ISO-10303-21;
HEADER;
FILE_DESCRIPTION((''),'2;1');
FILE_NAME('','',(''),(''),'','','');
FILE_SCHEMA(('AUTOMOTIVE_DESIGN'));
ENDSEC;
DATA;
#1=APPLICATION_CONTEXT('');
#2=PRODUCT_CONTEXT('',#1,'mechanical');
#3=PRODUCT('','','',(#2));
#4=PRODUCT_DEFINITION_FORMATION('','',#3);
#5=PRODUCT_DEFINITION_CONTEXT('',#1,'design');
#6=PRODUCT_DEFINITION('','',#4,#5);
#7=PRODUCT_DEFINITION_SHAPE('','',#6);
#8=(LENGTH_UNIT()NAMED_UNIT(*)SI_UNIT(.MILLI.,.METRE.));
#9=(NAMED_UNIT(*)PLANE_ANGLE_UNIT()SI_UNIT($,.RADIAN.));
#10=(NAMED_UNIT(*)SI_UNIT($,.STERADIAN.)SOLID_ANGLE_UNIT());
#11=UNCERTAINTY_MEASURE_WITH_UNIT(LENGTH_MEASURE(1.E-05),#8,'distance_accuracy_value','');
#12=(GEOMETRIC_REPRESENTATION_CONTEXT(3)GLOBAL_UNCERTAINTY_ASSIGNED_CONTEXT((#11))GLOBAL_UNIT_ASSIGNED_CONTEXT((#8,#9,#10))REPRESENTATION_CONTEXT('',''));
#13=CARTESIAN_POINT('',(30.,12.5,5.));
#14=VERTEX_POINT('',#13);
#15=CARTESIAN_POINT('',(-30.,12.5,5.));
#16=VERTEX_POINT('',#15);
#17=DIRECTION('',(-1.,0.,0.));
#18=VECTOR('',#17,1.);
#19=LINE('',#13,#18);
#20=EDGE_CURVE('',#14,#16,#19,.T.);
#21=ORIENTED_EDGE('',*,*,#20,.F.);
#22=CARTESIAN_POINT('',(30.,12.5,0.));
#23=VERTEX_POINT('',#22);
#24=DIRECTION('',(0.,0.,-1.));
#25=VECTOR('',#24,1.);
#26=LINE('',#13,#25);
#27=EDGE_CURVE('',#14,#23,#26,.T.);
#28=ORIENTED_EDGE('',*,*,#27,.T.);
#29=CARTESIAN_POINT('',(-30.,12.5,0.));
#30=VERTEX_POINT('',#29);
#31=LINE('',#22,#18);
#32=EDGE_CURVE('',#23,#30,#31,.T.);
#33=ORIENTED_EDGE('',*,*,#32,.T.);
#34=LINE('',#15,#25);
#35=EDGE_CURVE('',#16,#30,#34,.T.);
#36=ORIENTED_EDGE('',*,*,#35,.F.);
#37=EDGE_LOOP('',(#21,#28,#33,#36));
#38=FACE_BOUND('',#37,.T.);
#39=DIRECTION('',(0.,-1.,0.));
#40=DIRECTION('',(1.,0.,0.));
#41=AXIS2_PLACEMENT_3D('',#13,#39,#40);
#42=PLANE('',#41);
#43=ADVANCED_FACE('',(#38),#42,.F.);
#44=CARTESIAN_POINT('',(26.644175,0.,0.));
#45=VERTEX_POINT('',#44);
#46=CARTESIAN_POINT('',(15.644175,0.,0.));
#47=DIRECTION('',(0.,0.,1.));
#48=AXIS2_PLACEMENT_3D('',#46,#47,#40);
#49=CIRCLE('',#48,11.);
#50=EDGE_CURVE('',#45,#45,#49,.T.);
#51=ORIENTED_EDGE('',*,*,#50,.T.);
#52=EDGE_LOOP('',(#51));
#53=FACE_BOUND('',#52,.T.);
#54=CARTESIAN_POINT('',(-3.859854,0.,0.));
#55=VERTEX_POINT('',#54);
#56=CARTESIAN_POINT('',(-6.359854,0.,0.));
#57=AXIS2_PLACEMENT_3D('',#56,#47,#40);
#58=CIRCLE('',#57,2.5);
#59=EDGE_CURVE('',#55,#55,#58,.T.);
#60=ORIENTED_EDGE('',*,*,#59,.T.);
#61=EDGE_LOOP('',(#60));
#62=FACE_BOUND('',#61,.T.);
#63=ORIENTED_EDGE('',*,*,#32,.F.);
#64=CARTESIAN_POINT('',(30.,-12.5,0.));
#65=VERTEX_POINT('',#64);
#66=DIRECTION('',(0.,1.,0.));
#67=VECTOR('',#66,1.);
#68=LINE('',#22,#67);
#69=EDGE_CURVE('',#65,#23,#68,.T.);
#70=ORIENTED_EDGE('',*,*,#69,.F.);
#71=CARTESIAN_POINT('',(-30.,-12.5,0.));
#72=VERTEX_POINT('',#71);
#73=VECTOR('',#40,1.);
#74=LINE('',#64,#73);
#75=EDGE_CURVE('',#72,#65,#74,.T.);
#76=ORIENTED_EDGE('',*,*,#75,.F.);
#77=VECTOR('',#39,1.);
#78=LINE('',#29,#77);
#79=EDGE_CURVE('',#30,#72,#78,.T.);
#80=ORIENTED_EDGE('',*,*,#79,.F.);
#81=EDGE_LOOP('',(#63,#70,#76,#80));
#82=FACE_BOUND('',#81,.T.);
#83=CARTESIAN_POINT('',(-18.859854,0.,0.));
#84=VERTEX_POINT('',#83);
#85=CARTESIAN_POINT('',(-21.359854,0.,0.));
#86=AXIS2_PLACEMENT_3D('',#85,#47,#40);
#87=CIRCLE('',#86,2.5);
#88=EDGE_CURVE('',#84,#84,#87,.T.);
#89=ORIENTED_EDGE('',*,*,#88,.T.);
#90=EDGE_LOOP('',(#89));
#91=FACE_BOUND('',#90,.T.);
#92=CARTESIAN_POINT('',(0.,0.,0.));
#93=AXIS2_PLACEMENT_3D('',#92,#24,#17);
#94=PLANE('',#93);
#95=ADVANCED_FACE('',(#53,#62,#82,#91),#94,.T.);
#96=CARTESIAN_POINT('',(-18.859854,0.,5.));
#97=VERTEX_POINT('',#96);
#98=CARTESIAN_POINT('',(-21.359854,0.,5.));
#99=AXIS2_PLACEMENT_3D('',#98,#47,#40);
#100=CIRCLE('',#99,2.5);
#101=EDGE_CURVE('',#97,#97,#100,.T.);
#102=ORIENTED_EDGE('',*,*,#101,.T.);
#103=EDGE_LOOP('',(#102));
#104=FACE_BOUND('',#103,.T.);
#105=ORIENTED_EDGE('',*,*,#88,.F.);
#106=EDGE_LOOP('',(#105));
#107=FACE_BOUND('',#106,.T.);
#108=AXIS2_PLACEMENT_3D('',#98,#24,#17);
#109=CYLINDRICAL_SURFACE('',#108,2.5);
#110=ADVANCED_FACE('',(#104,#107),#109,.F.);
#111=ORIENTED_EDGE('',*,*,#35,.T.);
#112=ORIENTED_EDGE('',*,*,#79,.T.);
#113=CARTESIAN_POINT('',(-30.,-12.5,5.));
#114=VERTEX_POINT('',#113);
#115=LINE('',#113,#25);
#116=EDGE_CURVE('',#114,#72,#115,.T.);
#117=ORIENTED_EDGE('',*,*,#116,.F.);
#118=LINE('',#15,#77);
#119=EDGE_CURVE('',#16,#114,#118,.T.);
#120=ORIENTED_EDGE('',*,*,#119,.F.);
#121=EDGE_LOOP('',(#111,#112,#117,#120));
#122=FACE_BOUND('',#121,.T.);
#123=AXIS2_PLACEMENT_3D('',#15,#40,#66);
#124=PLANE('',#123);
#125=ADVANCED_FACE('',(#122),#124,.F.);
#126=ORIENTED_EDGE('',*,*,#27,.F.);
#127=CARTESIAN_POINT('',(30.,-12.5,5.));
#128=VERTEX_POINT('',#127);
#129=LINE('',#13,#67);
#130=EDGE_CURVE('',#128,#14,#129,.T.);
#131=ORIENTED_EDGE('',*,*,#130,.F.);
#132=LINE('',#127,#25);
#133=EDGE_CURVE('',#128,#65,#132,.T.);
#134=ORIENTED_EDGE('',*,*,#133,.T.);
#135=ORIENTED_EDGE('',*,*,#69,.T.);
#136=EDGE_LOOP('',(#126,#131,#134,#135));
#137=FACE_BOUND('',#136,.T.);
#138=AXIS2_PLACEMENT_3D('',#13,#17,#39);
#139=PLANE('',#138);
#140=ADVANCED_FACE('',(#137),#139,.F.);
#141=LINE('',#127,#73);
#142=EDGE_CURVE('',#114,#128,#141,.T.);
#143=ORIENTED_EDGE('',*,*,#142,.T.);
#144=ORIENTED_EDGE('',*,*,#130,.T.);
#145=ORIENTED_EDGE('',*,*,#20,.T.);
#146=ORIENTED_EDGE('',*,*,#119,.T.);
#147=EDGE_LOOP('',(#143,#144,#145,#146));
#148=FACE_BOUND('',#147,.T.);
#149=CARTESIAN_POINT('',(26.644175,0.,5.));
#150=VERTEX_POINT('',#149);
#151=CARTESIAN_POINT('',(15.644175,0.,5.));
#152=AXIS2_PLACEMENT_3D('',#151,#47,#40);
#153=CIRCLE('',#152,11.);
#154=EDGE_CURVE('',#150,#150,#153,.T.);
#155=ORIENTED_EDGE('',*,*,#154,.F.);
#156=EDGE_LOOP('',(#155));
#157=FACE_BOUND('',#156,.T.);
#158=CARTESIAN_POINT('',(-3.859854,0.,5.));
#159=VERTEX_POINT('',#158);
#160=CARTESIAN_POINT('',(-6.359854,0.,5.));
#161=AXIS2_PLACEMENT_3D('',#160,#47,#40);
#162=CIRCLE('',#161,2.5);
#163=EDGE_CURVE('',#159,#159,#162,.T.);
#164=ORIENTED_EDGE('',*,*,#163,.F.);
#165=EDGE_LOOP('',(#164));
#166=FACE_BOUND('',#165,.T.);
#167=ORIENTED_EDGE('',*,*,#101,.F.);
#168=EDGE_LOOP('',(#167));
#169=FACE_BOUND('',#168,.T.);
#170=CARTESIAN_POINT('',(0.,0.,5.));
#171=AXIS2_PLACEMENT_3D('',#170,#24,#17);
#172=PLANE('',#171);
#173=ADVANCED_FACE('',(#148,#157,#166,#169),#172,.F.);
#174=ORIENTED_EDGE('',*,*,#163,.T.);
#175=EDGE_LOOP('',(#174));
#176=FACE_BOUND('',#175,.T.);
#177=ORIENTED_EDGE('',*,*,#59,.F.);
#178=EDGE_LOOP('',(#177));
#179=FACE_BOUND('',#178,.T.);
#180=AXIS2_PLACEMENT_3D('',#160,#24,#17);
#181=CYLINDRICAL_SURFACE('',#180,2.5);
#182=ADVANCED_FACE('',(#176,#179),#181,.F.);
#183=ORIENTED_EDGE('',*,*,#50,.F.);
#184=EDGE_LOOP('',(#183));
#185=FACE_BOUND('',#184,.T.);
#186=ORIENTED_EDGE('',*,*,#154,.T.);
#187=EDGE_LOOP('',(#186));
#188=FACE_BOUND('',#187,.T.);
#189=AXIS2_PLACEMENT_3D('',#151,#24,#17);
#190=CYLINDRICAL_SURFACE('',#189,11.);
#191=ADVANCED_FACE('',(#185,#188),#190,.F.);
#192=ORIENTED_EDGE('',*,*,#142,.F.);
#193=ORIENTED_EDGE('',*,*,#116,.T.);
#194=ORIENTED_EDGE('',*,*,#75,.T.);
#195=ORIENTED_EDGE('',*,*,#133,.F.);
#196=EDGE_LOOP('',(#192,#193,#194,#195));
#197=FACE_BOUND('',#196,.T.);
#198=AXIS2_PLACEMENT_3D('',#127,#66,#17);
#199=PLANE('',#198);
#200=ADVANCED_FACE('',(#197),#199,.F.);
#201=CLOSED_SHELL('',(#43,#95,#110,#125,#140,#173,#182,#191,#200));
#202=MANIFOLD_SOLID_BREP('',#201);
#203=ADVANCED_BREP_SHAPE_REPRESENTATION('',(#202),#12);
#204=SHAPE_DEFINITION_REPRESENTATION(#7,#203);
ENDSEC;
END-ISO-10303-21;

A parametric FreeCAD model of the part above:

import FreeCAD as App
import Part
import Sketcher

V = App.Vector


def add_polygon(sketch, points):
    """Adds a closed chain of lines whose ends are joined by coincident constraints."""
    first, n = sketch.GeometryCount, len(points)
    for a, b in zip(points, points[1:] + points[:1]):
        sketch.addGeometry(Part.LineSegment(App.Vector(*a, 0), App.Vector(*b, 0)), False)
    for i in range(n):
        sketch.addConstraint(Sketcher.Constraint("Coincident", first + i, 2, first + (i + 1) % n, 1))

doc = App.newDocument("Part")
body = doc.addObject("PartDesign::Body", "Body")

sketch1 = body.newObject("Sketcher::SketchObject", "Sketch")
sketch1.AttachmentSupport = (doc.getObject("XY_Plane"), [""])
sketch1.MapMode = "FlatFace"
add_polygon(sketch1, [(-30, 12.5), (-30, -12.5), (30, -12.5), (30, 12.5)])
sketch1.addGeometry(Part.Circle(V(-21.359854, 0, 0), V(0, 0, 1), 2.5), False)
sketch1.addGeometry(Part.Circle(V(-6.359854, 0, 0), V(0, 0, 1), 2.5), False)
sketch1.addGeometry(Part.Circle(V(15.644175, 0, 0), V(0, 0, 1), 11), False)
sketch1.addConstraint([
    Sketcher.Constraint("Vertical", 0),
    Sketcher.Constraint("Horizontal", 1),
    Sketcher.Constraint("Vertical", 2),
    Sketcher.Constraint("Horizontal", 3),
    Sketcher.Constraint("Equal", 4, 5),
    Sketcher.Constraint("Symmetric", 0, 2, 2, 2, -1, 1),
    Sketcher.Constraint("PointOnObject", 4, 3, -1),
    Sketcher.Constraint("PointOnObject", 5, 3, -1),
    Sketcher.Constraint("PointOnObject", 6, 3, -1),
    Sketcher.Constraint("Diameter", 4, 5.0),
    Sketcher.Constraint("Diameter", 6, 22.0),
    Sketcher.Constraint("DistanceX", 1, 1, 1, 2, 60.0),
    Sketcher.Constraint("DistanceY", 0, 2, 0, 1, 25.0),
    Sketcher.Constraint("DistanceX", 4, 3, 5, 3, 15.0),
    Sketcher.Constraint("DistanceX", 5, 3, 6, 3, 22.004028),
    Sketcher.Constraint("DistanceX", 4, 3, -1, 1, 21.359854),
])
pad1 = body.newObject("PartDesign::Pad", "Pad")
pad1.Profile = sketch1
pad1.Length = 5

doc.recompute()
